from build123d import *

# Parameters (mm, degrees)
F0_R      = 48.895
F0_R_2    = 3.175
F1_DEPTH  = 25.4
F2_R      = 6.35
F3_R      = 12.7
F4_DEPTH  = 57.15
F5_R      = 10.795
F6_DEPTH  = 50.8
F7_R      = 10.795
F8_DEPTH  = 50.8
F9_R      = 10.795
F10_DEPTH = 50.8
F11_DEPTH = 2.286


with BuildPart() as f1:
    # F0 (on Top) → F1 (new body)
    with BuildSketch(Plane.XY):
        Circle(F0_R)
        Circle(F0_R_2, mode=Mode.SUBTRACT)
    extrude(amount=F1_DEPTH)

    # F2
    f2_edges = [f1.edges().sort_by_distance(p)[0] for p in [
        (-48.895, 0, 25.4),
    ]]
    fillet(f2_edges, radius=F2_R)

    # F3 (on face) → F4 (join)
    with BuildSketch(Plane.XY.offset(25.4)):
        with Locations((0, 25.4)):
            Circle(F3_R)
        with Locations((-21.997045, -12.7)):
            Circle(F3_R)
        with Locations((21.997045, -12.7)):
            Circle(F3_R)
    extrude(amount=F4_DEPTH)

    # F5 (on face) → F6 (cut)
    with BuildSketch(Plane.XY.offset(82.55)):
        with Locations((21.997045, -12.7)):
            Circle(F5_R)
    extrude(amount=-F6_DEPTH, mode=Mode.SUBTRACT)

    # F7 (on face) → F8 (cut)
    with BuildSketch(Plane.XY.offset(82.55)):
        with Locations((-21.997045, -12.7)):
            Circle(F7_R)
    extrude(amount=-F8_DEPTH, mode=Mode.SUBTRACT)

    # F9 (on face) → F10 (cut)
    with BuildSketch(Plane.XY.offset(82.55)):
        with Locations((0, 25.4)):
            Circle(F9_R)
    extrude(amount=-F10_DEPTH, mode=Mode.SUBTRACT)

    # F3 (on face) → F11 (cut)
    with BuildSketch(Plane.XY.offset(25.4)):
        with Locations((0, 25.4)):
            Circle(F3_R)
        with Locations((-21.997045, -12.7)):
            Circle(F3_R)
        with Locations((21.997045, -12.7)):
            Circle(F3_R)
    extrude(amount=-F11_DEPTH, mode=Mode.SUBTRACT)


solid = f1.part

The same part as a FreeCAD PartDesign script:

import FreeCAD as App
import Part
import Sketcher
from FreeCAD import Vector
Q = App.Units.Quantity


def edges_at(feature, points):
    """Names of the edges that pass closest to the given points."""
    edges = feature.Shape.Edges
    near = lambda p: min(range(len(edges)), key=lambda i: edges[i].distToShape(Part.Vertex(*p))[0])
    return sorted({f"Edge{near(p) + 1}" for p in points})

doc = App.newDocument("Part")
params = doc.addObject("Spreadsheet::Sheet", "Params")
for row, (alias, value) in enumerate([
    ("sketch1_diameter", "3.85 in"),
    ("sketch1_diameter2", "0.25 in"),
    ("pad1_length", "1 in"),
    ("fillet_radius", "0.25 in"),
    ("sketch2_diameter", "1 in"),
    ("pad2_length", "2.25 in"),
    ("sketch3_diameter", "0.85 in"),
    ("pocket1_length", "2 in"),
    ("sketch4_diameter", "0.85 in"),
    ("pocket2_length", "2 in"),
    ("sketch5_diameter", "0.85 in"),
    ("pocket3_length", "2 in"),
    ("sketch6_diameter", "1 in"),
    ("pocket4_length", "0.09 in"),
], start=1):
    params.set(f"A{row}", alias)
    params.set(f"B{row}", "=" + value)
    params.setAlias(f"B{row}", alias)

body = doc.addObject("PartDesign::Body", "Body")
body.AllowCompound = True

# Sketch on XY plane
sketch1 = body.newObject("Sketcher::SketchObject", "Sketch")
sketch1.AttachmentSupport = (doc.getObject("XY_Plane"), [""])
sketch1.MapMode = "FlatFace"
sketch1.addGeometry([
    Part.Circle(Vector(0, 0, 0), Vector(0, 0, 1), 48.9),
    Part.Circle(Vector(0, 0, 0), Vector(0, 0, 1), 3.2),
], False)
sketch1.addConstraint([
    Sketcher.Constraint("Coincident", 0, 3, -1, 1),
    Sketcher.Constraint("Coincident", 1, 3, -1, 1),
    Sketcher.Constraint("Diameter", 0, Q("3.85 in")),
    Sketcher.Constraint("Diameter", 1, Q("0.25 in")),
])
sketch1.setExpression("Constraints[2]", "Params.sketch1_diameter")
sketch1.setExpression("Constraints[3]", "Params.sketch1_diameter2")
pad1 = body.newObject("PartDesign::Pad", "Pad")
pad1.Profile = sketch1
pad1.setExpression("Length", "Params.pad1_length")
doc.recompute()

fillet = body.newObject("PartDesign::Fillet", "Fillet")
fillet.Base = (pad1, edges_at(pad1, [(-48.895, 0, 25.4)]))
fillet.setExpression("Radius", "Params.fillet_radius")

# Sketch on XY plane
sketch2 = body.newObject("Sketcher::SketchObject", "Sketch001")
sketch2.AttachmentSupport = (doc.getObject("XY_Plane"), [""])
sketch2.MapMode = "FlatFace"
sketch2.AttachmentOffset = App.Placement(Vector(0, 0, 1 * 25.4), App.Rotation())
sketch2.addGeometry([
    Part.Circle(Vector(0, 25, 0), Vector(0, 0, 1), 13),
    Part.Circle(Vector(-22, -13, 0), Vector(0, 0, 1), 13),
    Part.Circle(Vector(22, -13, 0), Vector(0, 0, 1), 13),
], False)
sketch2.addConstraint([
    Sketcher.Constraint("Equal", 0, 1),
    Sketcher.Constraint("Equal", 1, 2),
    Sketcher.Constraint("Symmetric", 1, 3, 2, 3, -2),
    Sketcher.Constraint("PointOnObject", 0, 3, -2),
    Sketcher.Constraint("Diameter", 0, Q("1 in")),
    Sketcher.Constraint("DistanceY", -1, 1, 0, 3, Q("1 in")),
    Sketcher.Constraint("DistanceY", 1, 3, -1, 1, Q("0.5 in")),
    Sketcher.Constraint("DistanceX", 1, 3, 2, 3, Q("43.99409 mm")),
])
sketch2.setExpression("Constraints[4]", "Params.sketch2_diameter")
pad2 = body.newObject("PartDesign::Pad", "Pad001")
pad2.Profile = sketch2
pad2.setExpression("Length", "Params.pad2_length")

# Sketch on XY plane
sketch3 = body.newObject("Sketcher::SketchObject", "Sketch002")
sketch3.AttachmentSupport = (doc.getObject("XY_Plane"), [""])
sketch3.MapMode = "FlatFace"
sketch3.AttachmentOffset = App.Placement(Vector(0, 0, 3.25 * 25.4), App.Rotation())
sketch3.addGeometry(Part.Circle(Vector(22, -13, 0), Vector(0, 0, 1), 11), False)
sketch3.addConstraint([
    Sketcher.Constraint("Diameter", 0, Q("0.85 in")),
    Sketcher.Constraint("DistanceY", 0, 3, -1, 1, Q("0.5 in")),
    Sketcher.Constraint("DistanceX", -1, 1, 0, 3, Q("21.997045 mm")),
])
sketch3.setExpression("Constraints[0]", "Params.sketch3_diameter")
pocket1 = body.newObject("PartDesign::Pocket", "Pocket")
pocket1.Profile = sketch3
pocket1.setExpression("Length", "Params.pocket1_length")

# Sketch on XY plane
sketch4 = body.newObject("Sketcher::SketchObject", "Sketch003")
sketch4.AttachmentSupport = (doc.getObject("XY_Plane"), [""])
sketch4.MapMode = "FlatFace"
sketch4.AttachmentOffset = App.Placement(Vector(0, 0, 3.25 * 25.4), App.Rotation())
sketch4.addGeometry(Part.Circle(Vector(-22, -13, 0), Vector(0, 0, 1), 11), False)
sketch4.addConstraint([
    Sketcher.Constraint("Diameter", 0, Q("0.85 in")),
    Sketcher.Constraint("DistanceY", 0, 3, -1, 1, Q("0.5 in")),
    Sketcher.Constraint("DistanceX", 0, 3, -1, 1, Q("21.997045 mm")),
])
sketch4.setExpression("Constraints[0]", "Params.sketch4_diameter")
pocket2 = body.newObject("PartDesign::Pocket", "Pocket001")
pocket2.Profile = sketch4
pocket2.setExpression("Length", "Params.pocket2_length")

# Sketch on XY plane
sketch5 = body.newObject("Sketcher::SketchObject", "Sketch004")
sketch5.AttachmentSupport = (doc.getObject("XY_Plane"), [""])
sketch5.MapMode = "FlatFace"
sketch5.AttachmentOffset = App.Placement(Vector(0, 0, 3.25 * 25.4), App.Rotation())
sketch5.addGeometry(Part.Circle(Vector(0, 25, 0), Vector(0, 0, 1), 11), False)
sketch5.addConstraint([
    Sketcher.Constraint("PointOnObject", 0, 3, -2),
    Sketcher.Constraint("Diameter", 0, Q("0.85 in")),
    Sketcher.Constraint("DistanceY", -1, 1, 0, 3, Q("1 in")),
])
sketch5.setExpression("Constraints[1]", "Params.sketch5_diameter")
pocket3 = body.newObject("PartDesign::Pocket", "Pocket002")
pocket3.Profile = sketch5
pocket3.setExpression("Length", "Params.pocket3_length")

# Sketch on XY plane
sketch6 = body.newObject("Sketcher::SketchObject", "Sketch005")
sketch6.AttachmentSupport = (doc.getObject("XY_Plane"), [""])
sketch6.MapMode = "FlatFace"
sketch6.AttachmentOffset = App.Placement(Vector(0, 0, 1 * 25.4), App.Rotation())
sketch6.addGeometry([
    Part.Circle(Vector(0, 25, 0), Vector(0, 0, 1), 13),
    Part.Circle(Vector(-22, -13, 0), Vector(0, 0, 1), 13),
    Part.Circle(Vector(22, -13, 0), Vector(0, 0, 1), 13),
], False)
sketch6.addConstraint([
    Sketcher.Constraint("Equal", 0, 1),
    Sketcher.Constraint("Equal", 1, 2),
    Sketcher.Constraint("Symmetric", 1, 3, 2, 3, -2),
    Sketcher.Constraint("PointOnObject", 0, 3, -2),
    Sketcher.Constraint("Diameter", 0, Q("1 in")),
    Sketcher.Constraint("DistanceY", -1, 1, 0, 3, Q("1 in")),
    Sketcher.Constraint("DistanceY", 1, 3, -1, 1, Q("0.5 in")),
    Sketcher.Constraint("DistanceX", 1, 3, 2, 3, Q("43.99409 mm")),
])
sketch6.setExpression("Constraints[4]", "Params.sketch6_diameter")
pocket4 = body.newObject("PartDesign::Pocket", "Pocket003")
pocket4.Profile = sketch6
pocket4.setExpression("Length", "Params.pocket4_length")

doc.recompute()
